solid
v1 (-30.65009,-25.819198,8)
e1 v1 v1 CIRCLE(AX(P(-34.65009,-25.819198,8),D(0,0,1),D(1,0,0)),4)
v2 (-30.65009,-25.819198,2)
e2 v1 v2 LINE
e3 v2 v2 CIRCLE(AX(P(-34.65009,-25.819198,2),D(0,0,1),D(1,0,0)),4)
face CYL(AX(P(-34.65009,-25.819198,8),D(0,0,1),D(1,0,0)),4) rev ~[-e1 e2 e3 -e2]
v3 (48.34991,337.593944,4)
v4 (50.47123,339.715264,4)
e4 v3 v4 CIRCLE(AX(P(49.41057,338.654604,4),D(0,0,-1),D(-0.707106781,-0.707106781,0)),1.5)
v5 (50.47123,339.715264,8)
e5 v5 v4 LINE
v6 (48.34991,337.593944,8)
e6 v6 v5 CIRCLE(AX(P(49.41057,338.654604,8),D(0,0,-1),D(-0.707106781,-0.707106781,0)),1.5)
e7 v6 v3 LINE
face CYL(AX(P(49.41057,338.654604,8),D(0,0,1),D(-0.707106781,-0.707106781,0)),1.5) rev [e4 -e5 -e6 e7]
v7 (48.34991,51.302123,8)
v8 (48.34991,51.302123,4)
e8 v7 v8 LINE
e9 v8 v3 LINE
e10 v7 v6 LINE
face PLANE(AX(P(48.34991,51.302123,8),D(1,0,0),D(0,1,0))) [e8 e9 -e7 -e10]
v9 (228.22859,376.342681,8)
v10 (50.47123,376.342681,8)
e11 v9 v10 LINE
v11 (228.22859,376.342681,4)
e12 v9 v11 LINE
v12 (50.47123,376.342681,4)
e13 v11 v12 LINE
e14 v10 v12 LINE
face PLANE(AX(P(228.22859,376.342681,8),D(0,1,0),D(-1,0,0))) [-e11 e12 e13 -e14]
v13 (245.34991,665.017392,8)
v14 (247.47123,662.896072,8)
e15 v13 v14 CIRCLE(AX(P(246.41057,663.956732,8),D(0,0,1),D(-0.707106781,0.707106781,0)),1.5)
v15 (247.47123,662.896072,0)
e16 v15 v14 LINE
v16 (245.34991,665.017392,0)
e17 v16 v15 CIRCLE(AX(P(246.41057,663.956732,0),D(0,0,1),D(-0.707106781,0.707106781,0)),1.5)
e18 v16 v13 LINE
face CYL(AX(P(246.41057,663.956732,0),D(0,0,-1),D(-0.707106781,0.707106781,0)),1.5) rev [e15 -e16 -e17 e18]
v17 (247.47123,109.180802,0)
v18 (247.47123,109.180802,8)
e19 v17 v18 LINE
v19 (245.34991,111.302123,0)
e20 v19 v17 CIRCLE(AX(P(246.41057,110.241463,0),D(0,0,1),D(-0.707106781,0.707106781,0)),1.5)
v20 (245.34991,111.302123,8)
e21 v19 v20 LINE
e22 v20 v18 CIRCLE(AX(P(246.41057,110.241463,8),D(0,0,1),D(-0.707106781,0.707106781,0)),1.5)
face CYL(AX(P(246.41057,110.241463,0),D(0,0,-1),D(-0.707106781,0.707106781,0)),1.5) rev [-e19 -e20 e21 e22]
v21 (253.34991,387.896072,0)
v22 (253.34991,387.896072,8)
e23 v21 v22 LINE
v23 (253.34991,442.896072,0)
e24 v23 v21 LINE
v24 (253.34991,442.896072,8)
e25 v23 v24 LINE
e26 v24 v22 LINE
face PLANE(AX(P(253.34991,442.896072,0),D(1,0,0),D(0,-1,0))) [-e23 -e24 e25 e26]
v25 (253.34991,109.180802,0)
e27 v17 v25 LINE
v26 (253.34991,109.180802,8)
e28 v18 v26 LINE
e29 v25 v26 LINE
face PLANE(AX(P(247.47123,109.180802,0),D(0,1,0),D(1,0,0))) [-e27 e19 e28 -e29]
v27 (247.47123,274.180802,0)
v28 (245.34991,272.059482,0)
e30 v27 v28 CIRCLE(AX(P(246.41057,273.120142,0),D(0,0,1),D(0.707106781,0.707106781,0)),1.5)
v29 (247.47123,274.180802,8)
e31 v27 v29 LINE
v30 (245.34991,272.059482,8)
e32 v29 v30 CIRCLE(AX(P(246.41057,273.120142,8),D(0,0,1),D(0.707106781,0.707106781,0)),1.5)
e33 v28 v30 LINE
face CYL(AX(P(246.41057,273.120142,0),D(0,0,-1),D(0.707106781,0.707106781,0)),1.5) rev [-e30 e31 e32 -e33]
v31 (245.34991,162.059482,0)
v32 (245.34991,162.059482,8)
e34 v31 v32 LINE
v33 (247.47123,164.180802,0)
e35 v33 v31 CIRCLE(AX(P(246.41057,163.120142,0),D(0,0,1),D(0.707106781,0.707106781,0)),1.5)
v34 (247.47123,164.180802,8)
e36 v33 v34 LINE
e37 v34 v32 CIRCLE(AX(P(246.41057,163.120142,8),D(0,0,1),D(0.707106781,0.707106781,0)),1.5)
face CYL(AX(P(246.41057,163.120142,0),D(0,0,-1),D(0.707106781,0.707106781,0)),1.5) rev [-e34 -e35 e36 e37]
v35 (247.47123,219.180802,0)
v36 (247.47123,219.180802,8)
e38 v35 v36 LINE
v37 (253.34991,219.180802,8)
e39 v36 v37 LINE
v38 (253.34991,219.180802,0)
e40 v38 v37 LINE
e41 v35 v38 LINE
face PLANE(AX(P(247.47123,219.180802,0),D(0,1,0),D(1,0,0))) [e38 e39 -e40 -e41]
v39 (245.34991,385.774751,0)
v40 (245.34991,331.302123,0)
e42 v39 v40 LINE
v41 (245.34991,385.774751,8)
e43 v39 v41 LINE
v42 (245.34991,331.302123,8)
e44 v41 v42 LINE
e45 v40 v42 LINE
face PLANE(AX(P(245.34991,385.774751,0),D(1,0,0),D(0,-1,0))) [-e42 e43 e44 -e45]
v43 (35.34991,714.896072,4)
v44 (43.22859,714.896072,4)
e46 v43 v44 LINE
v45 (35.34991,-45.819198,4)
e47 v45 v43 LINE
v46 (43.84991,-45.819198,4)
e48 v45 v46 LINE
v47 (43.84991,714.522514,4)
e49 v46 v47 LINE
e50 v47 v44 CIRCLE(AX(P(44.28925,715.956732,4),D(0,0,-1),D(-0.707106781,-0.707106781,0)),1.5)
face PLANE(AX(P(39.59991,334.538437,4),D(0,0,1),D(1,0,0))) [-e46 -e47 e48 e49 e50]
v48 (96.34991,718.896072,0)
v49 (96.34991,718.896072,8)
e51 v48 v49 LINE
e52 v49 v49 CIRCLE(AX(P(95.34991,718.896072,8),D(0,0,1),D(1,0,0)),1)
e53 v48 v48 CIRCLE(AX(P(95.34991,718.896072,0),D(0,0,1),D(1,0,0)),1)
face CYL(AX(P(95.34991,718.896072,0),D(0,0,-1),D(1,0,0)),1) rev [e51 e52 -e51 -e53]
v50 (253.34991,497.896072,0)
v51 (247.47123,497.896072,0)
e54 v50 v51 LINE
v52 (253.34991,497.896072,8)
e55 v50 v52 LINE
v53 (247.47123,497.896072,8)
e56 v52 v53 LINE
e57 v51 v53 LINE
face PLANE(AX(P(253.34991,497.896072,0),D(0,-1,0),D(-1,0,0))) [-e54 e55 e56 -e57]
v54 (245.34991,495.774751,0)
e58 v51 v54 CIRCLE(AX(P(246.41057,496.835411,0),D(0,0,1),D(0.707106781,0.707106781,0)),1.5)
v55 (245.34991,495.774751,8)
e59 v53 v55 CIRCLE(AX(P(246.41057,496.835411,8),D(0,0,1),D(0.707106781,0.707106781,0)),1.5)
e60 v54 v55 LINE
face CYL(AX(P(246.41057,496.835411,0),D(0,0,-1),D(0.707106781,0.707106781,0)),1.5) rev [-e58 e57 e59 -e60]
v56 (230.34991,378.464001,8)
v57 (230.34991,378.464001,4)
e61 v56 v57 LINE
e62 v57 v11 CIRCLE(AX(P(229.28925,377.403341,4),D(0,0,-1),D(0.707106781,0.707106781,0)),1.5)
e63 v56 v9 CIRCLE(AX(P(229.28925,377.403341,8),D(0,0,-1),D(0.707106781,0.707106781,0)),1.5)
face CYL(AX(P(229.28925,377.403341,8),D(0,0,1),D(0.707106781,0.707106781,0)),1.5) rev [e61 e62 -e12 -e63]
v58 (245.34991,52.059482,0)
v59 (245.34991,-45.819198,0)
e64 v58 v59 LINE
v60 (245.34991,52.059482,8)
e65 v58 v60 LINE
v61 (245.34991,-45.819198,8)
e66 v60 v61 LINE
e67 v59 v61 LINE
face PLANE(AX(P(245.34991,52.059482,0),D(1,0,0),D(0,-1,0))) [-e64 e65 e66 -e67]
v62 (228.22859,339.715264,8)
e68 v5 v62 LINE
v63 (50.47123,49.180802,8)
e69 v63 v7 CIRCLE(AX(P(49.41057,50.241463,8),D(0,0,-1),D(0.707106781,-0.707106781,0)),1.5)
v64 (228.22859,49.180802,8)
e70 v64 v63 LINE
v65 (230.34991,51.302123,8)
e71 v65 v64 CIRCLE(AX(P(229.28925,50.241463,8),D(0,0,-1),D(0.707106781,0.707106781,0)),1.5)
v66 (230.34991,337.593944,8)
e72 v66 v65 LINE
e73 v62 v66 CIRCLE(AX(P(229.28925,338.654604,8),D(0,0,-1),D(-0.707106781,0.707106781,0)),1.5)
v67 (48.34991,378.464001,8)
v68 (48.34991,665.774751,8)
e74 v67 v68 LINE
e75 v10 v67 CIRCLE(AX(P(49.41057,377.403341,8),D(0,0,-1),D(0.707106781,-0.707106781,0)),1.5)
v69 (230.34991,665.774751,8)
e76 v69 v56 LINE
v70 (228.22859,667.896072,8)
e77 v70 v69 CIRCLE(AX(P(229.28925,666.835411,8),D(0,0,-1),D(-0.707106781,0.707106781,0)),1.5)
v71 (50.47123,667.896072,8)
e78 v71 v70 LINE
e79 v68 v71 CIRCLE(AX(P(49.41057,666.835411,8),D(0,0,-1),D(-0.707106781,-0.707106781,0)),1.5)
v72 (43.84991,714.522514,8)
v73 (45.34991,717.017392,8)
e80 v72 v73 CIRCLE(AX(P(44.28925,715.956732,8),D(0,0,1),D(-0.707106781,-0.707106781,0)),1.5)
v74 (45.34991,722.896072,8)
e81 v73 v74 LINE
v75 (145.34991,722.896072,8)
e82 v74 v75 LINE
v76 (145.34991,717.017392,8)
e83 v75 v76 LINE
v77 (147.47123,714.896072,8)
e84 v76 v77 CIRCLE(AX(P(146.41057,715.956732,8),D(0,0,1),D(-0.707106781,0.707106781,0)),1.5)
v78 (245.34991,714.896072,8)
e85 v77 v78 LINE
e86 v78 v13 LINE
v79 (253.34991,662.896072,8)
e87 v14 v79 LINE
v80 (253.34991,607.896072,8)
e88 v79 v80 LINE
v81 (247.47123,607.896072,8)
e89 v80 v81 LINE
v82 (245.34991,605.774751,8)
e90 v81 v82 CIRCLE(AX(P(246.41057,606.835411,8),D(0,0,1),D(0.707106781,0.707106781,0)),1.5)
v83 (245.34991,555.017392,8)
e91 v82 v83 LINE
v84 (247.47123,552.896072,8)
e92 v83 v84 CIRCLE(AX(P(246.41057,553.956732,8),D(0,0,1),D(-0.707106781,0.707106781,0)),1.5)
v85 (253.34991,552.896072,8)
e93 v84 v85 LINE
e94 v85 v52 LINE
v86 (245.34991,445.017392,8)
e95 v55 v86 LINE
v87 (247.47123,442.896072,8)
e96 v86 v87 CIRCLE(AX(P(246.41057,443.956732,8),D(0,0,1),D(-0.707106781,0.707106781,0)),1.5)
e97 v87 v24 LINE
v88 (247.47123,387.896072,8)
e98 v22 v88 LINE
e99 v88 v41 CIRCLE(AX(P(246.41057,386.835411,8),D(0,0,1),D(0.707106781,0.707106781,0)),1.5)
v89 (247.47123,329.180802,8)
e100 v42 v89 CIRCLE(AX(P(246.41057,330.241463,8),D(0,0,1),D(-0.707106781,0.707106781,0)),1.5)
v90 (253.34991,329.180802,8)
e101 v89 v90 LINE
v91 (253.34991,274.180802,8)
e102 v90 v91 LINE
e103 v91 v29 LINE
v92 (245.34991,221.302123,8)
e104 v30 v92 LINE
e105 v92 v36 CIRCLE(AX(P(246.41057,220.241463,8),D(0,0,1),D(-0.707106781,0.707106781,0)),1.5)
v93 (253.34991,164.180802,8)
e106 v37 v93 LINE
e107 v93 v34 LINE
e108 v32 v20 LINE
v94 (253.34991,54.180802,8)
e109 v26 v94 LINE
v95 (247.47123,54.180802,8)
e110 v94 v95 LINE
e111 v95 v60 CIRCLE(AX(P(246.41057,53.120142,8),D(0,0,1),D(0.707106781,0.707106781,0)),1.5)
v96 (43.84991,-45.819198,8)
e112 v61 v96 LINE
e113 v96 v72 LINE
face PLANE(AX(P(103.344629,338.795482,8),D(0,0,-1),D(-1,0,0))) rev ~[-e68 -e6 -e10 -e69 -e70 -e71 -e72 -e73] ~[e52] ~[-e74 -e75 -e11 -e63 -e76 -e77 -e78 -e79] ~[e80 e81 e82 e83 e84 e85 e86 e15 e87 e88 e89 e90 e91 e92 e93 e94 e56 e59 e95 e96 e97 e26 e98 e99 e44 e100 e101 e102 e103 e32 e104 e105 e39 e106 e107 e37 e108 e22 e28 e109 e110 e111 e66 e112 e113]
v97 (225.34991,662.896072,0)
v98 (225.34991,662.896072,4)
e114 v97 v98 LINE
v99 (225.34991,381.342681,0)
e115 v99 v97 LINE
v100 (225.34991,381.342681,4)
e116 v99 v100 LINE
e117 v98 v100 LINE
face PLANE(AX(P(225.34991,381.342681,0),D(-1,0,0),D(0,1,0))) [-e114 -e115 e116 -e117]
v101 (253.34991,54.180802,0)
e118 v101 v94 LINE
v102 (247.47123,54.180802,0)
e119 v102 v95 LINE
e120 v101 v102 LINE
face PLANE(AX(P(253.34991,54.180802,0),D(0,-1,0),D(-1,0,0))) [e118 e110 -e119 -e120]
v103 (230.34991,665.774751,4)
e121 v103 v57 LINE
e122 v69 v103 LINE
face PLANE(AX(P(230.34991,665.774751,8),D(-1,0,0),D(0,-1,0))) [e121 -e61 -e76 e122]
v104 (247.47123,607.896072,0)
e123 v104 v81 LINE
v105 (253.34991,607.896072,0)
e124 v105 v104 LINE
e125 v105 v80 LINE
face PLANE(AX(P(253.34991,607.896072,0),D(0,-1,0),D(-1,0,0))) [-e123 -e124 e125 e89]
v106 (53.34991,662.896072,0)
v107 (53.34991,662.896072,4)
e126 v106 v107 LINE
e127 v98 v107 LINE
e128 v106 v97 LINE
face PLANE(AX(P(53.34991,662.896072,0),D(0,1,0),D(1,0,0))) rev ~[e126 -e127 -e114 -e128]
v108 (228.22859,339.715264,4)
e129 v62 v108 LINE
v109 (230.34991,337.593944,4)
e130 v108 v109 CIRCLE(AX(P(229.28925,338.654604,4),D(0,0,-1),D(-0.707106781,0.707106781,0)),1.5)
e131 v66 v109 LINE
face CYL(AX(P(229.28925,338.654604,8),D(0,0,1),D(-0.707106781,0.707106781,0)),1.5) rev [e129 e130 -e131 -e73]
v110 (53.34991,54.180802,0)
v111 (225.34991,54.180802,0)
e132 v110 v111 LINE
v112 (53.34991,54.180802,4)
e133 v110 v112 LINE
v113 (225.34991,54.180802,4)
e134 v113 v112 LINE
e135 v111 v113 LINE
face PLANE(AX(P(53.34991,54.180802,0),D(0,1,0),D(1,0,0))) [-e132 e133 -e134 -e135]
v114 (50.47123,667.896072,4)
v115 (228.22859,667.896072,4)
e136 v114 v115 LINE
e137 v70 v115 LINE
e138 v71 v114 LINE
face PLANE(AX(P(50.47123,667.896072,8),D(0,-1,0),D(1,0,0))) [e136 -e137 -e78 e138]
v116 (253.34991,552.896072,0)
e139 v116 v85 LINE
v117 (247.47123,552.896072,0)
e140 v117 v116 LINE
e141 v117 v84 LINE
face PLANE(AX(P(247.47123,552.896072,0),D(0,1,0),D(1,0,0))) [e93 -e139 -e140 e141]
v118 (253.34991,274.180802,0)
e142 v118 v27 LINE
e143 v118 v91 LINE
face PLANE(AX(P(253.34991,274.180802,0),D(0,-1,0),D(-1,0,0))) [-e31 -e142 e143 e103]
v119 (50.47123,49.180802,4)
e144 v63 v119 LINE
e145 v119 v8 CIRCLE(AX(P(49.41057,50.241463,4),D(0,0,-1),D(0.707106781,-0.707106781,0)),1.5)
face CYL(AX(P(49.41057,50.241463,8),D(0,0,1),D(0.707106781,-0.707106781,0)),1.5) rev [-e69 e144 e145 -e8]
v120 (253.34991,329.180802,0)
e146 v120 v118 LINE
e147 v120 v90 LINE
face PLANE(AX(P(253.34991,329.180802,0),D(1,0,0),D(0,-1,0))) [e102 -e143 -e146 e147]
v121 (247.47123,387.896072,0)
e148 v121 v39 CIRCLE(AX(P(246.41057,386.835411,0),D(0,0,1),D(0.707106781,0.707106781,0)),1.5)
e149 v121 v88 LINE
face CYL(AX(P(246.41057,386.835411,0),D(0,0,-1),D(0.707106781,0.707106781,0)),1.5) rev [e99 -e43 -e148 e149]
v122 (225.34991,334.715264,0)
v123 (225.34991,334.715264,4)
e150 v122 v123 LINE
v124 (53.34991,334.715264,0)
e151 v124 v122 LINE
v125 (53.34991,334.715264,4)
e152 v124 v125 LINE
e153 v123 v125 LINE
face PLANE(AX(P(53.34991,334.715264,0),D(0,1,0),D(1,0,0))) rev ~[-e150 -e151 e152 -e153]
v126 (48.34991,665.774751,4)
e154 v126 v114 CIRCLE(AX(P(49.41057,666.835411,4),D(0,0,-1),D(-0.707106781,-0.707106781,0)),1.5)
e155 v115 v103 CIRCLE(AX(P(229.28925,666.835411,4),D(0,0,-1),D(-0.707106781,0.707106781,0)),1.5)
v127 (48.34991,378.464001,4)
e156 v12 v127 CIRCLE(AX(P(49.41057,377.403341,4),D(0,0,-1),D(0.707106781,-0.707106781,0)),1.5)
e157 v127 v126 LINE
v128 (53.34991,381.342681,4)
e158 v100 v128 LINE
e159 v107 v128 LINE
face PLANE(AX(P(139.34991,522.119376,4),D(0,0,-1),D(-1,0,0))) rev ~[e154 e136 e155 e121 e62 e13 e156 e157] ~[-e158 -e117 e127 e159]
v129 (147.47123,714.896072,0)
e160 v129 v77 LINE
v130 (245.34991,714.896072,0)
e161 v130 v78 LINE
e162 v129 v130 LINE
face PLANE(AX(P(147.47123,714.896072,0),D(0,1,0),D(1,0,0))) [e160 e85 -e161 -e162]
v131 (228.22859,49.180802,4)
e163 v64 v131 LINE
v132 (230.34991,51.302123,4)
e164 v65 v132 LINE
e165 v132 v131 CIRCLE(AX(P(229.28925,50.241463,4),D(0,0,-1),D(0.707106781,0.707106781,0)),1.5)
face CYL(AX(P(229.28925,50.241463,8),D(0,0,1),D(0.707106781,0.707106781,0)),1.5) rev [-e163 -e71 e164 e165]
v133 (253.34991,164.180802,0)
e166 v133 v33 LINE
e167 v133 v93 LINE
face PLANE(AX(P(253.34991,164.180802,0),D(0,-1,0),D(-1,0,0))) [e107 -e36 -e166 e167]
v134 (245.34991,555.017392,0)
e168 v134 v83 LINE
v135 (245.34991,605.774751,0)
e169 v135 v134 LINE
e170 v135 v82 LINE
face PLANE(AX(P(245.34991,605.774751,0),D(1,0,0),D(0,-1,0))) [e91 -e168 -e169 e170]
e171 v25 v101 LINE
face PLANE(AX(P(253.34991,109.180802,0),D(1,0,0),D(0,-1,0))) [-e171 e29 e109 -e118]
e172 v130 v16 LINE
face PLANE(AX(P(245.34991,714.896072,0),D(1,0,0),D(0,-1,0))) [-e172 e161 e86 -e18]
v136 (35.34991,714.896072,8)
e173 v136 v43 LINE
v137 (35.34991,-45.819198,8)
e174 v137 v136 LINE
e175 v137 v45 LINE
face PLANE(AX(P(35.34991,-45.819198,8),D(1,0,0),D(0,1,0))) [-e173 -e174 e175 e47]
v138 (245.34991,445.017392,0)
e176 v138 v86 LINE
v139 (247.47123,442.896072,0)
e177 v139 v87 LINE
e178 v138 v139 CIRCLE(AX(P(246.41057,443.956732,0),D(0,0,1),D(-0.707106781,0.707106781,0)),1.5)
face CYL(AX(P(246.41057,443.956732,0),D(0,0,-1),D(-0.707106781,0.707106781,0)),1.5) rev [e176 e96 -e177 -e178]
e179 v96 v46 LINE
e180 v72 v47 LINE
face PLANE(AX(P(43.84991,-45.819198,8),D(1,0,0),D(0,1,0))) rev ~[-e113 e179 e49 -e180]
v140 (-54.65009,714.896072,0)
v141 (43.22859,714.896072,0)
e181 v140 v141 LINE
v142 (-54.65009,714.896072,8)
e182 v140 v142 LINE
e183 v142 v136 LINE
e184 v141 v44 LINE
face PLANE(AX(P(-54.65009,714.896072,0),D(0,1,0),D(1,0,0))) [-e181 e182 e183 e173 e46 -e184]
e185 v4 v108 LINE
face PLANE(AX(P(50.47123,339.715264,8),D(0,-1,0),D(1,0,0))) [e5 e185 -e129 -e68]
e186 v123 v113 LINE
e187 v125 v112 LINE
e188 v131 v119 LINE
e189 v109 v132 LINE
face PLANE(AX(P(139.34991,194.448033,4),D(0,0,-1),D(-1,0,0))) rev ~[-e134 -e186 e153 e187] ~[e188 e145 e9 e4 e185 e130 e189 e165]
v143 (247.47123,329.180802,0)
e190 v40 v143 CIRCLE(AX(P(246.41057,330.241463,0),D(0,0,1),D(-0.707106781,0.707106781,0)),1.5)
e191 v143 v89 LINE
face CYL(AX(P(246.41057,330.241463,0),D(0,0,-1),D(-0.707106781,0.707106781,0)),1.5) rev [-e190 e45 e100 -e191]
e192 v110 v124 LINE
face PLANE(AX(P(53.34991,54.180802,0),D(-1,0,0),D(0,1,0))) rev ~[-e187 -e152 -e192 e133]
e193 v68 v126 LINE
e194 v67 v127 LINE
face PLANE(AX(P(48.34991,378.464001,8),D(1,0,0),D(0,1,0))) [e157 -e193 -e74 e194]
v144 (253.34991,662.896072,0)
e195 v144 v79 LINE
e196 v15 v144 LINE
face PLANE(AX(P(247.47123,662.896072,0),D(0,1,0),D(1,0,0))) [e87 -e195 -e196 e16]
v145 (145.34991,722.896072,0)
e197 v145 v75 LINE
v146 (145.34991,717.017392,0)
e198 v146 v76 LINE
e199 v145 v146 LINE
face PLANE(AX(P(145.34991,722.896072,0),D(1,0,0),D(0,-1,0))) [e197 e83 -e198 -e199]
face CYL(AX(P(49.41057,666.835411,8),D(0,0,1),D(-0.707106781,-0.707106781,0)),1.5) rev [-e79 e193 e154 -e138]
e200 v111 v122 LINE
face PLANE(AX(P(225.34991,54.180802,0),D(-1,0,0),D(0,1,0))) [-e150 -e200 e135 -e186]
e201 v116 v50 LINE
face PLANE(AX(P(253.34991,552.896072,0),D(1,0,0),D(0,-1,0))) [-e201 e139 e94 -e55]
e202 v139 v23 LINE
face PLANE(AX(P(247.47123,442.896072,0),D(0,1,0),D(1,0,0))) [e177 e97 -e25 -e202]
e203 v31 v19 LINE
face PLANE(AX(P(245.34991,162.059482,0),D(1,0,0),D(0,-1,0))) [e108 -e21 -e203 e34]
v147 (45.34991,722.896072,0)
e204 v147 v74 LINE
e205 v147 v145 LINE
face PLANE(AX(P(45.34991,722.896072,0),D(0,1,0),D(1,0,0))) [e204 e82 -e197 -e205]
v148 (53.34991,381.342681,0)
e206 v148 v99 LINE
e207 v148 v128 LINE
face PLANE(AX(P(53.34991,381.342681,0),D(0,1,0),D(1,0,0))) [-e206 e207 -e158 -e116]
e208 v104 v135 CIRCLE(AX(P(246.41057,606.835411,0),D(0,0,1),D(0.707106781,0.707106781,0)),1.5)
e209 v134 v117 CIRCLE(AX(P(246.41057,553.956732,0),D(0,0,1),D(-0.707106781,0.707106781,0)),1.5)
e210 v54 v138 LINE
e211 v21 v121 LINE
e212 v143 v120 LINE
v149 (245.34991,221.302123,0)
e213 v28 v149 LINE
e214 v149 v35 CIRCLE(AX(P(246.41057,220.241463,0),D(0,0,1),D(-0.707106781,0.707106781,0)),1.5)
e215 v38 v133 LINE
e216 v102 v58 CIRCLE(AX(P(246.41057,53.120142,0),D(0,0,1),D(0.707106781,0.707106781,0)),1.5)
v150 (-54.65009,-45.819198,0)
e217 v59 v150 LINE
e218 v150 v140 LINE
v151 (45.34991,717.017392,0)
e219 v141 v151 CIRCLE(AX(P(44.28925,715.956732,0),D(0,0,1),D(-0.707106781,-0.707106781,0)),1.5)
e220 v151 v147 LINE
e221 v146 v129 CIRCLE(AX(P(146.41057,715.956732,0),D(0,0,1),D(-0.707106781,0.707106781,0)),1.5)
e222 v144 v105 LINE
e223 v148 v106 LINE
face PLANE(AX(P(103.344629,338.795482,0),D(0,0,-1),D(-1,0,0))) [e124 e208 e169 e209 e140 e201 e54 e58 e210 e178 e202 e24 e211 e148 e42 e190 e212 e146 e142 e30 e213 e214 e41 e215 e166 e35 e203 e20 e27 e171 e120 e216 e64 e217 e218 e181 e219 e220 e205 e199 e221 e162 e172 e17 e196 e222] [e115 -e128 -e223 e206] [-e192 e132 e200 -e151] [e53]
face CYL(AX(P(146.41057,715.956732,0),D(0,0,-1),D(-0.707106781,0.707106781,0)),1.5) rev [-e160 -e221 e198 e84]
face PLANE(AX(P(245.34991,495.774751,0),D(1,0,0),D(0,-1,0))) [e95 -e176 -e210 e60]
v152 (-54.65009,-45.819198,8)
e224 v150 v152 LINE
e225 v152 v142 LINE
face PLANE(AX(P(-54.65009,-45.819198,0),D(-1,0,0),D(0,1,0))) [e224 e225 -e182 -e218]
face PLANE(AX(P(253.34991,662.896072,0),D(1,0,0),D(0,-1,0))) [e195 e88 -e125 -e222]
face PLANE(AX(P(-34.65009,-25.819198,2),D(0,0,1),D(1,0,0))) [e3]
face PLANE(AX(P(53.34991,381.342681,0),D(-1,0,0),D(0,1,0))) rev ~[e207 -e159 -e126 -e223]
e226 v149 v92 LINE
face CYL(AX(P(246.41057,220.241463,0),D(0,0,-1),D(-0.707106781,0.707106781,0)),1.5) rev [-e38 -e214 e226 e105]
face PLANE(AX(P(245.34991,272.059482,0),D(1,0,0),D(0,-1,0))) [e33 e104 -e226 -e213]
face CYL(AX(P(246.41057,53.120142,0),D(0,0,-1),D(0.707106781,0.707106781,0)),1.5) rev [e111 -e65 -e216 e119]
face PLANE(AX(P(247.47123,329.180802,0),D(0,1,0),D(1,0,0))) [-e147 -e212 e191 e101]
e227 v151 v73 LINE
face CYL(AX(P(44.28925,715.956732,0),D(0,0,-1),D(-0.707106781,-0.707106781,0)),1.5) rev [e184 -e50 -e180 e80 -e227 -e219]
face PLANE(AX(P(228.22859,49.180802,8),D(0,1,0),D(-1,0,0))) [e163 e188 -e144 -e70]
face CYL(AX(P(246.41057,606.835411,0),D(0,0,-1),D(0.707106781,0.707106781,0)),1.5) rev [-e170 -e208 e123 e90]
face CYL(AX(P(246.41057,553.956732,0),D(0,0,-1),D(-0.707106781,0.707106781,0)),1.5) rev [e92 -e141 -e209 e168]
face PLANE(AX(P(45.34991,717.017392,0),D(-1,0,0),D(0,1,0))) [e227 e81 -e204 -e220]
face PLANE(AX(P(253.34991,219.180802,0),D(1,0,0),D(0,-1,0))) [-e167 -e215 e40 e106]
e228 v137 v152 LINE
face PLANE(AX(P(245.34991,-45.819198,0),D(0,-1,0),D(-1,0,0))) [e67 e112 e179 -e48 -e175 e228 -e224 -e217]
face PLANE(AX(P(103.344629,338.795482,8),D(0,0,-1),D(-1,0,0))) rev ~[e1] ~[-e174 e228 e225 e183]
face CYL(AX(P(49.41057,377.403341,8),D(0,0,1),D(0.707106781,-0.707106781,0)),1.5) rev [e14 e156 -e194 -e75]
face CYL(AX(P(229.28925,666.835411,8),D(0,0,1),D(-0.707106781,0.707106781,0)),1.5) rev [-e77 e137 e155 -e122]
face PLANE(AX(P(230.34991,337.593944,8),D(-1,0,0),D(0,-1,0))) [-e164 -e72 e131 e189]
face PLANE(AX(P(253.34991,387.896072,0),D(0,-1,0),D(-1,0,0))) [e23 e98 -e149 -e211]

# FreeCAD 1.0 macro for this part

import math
import FreeCAD as App
import Part
import Sketcher


def add_polygon(sketch, points):
    """Adds a closed chain of lines whose ends are joined by coincident constraints."""
    first, n = sketch.GeometryCount, len(points)
    for a, b in zip(points, points[1:] + points[:1]):
        sketch.addGeometry(Part.LineSegment(App.Vector(*a, 0), App.Vector(*b, 0)), False)
    for i in range(n):
        sketch.addConstraint(Sketcher.Constraint("Coincident", first + i, 2, first + (i + 1) % n, 1))

doc = App.newDocument("Part")
body = doc.addObject("PartDesign::Body", "Body")

# Sketch on XY plane
sketch1 = doc.addObject("Sketcher::SketchObject", "Sketch")
body.addObject(sketch1)
sketch1.AttachmentSupport = (doc.XY_Plane, [""])
sketch1.MapMode = "FlatFace"
sketch1.addGeometry(Part.LineSegment(App.Vector(-54.65009, 714.896072, 0), App.Vector(-54.65009, -45.819198, 0)), False)  # 0
sketch1.addGeometry(Part.LineSegment(App.Vector(-54.65009, -45.819198, 0), App.Vector(245.34991, -45.819198, 0)), False)  # 1
sketch1.addGeometry(Part.LineSegment(App.Vector(245.34991, -45.819198, 0), App.Vector(245.34991, 52.059482, 0)), False)  # 2
sketch1.addGeometry(Part.ArcOfCircle(Part.Circle(App.Vector(246.41057, 53.120142, 0), App.Vector(0, 0, 1), 1.5), math.radians(45), math.radians(225)), False)  # 3
sketch1.addGeometry(Part.LineSegment(App.Vector(247.47123, 54.180802, 0), App.Vector(253.34991, 54.180802, 0)), False)  # 4
sketch1.addGeometry(Part.LineSegment(App.Vector(253.34991, 54.180802, 0), App.Vector(253.34991, 109.180802, 0)), False)  # 5
sketch1.addGeometry(Part.LineSegment(App.Vector(253.34991, 109.180802, 0), App.Vector(247.47123, 109.180802, 0)), False)  # 6
sketch1.addGeometry(Part.ArcOfCircle(Part.Circle(App.Vector(246.41057, 110.241463, 0), App.Vector(0, 0, 1), 1.5), math.radians(135), math.radians(315)), False)  # 7
sketch1.addGeometry(Part.LineSegment(App.Vector(245.34991, 111.302123, 0), App.Vector(245.34991, 162.059482, 0)), False)  # 8
sketch1.addGeometry(Part.ArcOfCircle(Part.Circle(App.Vector(246.41057, 163.120142, 0), App.Vector(0, 0, 1), 1.5), math.radians(45), math.radians(225)), False)  # 9
sketch1.addGeometry(Part.LineSegment(App.Vector(247.47123, 164.180802, 0), App.Vector(253.34991, 164.180802, 0)), False)  # 10
sketch1.addGeometry(Part.LineSegment(App.Vector(253.34991, 164.180802, 0), App.Vector(253.34991, 219.180802, 0)), False)  # 11
sketch1.addGeometry(Part.LineSegment(App.Vector(253.34991, 219.180802, 0), App.Vector(247.47123, 219.180802, 0)), False)  # 12
sketch1.addGeometry(Part.ArcOfCircle(Part.Circle(App.Vector(246.41057, 220.241463, 0), App.Vector(0, 0, 1), 1.5), math.radians(135), math.radians(315)), False)  # 13
sketch1.addGeometry(Part.LineSegment(App.Vector(245.34991, 221.302123, 0), App.Vector(245.34991, 272.059482, 0)), False)  # 14
sketch1.addGeometry(Part.ArcOfCircle(Part.Circle(App.Vector(246.41057, 273.120142, 0), App.Vector(0, 0, 1), 1.5), math.radians(45), math.radians(225)), False)  # 15
sketch1.addGeometry(Part.LineSegment(App.Vector(247.47123, 274.180802, 0), App.Vector(253.34991, 274.180802, 0)), False)  # 16
sketch1.addGeometry(Part.LineSegment(App.Vector(253.34991, 274.180802, 0), App.Vector(253.34991, 329.180802, 0)), False)  # 17
sketch1.addGeometry(Part.LineSegment(App.Vector(253.34991, 329.180802, 0), App.Vector(247.47123, 329.180802, 0)), False)  # 18
sketch1.addGeometry(Part.ArcOfCircle(Part.Circle(App.Vector(246.41057, 330.241463, 0), App.Vector(0, 0, 1), 1.5), math.radians(135), math.radians(315)), False)  # 19
sketch1.addGeometry(Part.LineSegment(App.Vector(245.34991, 331.302123, 0), App.Vector(245.34991, 385.774751, 0)), False)  # 20
sketch1.addGeometry(Part.ArcOfCircle(Part.Circle(App.Vector(246.41057, 386.835411, 0), App.Vector(0, 0, 1), 1.5), math.radians(45), math.radians(225)), False)  # 21
sketch1.addGeometry(Part.LineSegment(App.Vector(247.47123, 387.896072, 0), App.Vector(253.34991, 387.896072, 0)), False)  # 22
sketch1.addGeometry(Part.LineSegment(App.Vector(253.34991, 387.896072, 0), App.Vector(253.34991, 442.896072, 0)), False)  # 23
sketch1.addGeometry(Part.LineSegment(App.Vector(253.34991, 442.896072, 0), App.Vector(247.47123, 442.896072, 0)), False)  # 24
sketch1.addGeometry(Part.ArcOfCircle(Part.Circle(App.Vector(246.41057, 443.956732, 0), App.Vector(0, 0, 1), 1.5), math.radians(135), math.radians(315)), False)  # 25
sketch1.addGeometry(Part.LineSegment(App.Vector(245.34991, 445.017392, 0), App.Vector(245.34991, 495.774751, 0)), False)  # 26
sketch1.addGeometry(Part.ArcOfCircle(Part.Circle(App.Vector(246.41057, 496.835411, 0), App.Vector(0, 0, 1), 1.5), math.radians(45), math.radians(225)), False)  # 27
sketch1.addGeometry(Part.LineSegment(App.Vector(247.47123, 497.896072, 0), App.Vector(253.34991, 497.896072, 0)), False)  # 28
sketch1.addGeometry(Part.LineSegment(App.Vector(253.34991, 497.896072, 0), App.Vector(253.34991, 552.896072, 0)), False)  # 29
sketch1.addGeometry(Part.LineSegment(App.Vector(253.34991, 552.896072, 0), App.Vector(247.47123, 552.896072, 0)), False)  # 30
sketch1.addGeometry(Part.ArcOfCircle(Part.Circle(App.Vector(246.41057, 553.956732, 0), App.Vector(0, 0, 1), 1.5), math.radians(135), math.radians(315)), False)  # 31
sketch1.addGeometry(Part.LineSegment(App.Vector(245.34991, 555.017392, 0), App.Vector(245.34991, 605.774751, 0)), False)  # 32
sketch1.addGeometry(Part.ArcOfCircle(Part.Circle(App.Vector(246.41057, 606.835411, 0), App.Vector(0, 0, 1), 1.5), math.radians(45), math.radians(225)), False)  # 33
sketch1.addGeometry(Part.LineSegment(App.Vector(247.47123, 607.896072, 0), App.Vector(253.34991, 607.896072, 0)), False)  # 34
sketch1.addGeometry(Part.LineSegment(App.Vector(253.34991, 607.896072, 0), App.Vector(253.34991, 662.896072, 0)), False)  # 35
sketch1.addGeometry(Part.LineSegment(App.Vector(253.34991, 662.896072, 0), App.Vector(247.47123, 662.896072, 0)), False)  # 36
sketch1.addGeometry(Part.ArcOfCircle(Part.Circle(App.Vector(246.41057, 663.956732, 0), App.Vector(0, 0, 1), 1.5), math.radians(135), math.radians(315)), False)  # 37
sketch1.addGeometry(Part.LineSegment(App.Vector(245.34991, 665.017392, 0), App.Vector(245.34991, 714.896072, 0)), False)  # 38
sketch1.addGeometry(Part.LineSegment(App.Vector(245.34991, 714.896072, 0), App.Vector(147.47123, 714.896072, 0)), False)  # 39
sketch1.addGeometry(Part.ArcOfCircle(Part.Circle(App.Vector(146.41057, 715.956732, 0), App.Vector(0, 0, 1), 1.5), math.radians(135), math.radians(315)), False)  # 40
sketch1.addGeometry(Part.LineSegment(App.Vector(145.34991, 717.017392, 0), App.Vector(145.34991, 722.896072, 0)), False)  # 41
sketch1.addGeometry(Part.LineSegment(App.Vector(145.34991, 722.896072, 0), App.Vector(45.34991, 722.896072, 0)), False)  # 42
sketch1.addGeometry(Part.LineSegment(App.Vector(45.34991, 722.896072, 0), App.Vector(45.34991, 717.017392, 0)), False)  # 43
sketch1.addGeometry(Part.ArcOfCircle(Part.Circle(App.Vector(44.28925, 715.956732, 0), App.Vector(0, 0, 1), 1.5), math.radians(-135), math.radians(45)), False)  # 44
sketch1.addGeometry(Part.LineSegment(App.Vector(43.22859, 714.896072, 0), App.Vector(-54.65009, 714.896072, 0)), False)  # 45
add_polygon(sketch1, [(53.34991, 54.180802), (53.34991, 334.715264), (225.34991, 334.715264), (225.34991, 54.180802)])  # lines 46-49
add_polygon(sketch1, [(53.34991, 381.342681), (53.34991, 662.896072), (225.34991, 662.896072), (225.34991, 381.342681)])  # lines 50-53
sketch1.addGeometry(Part.Circle(App.Vector(95.34991, 718.896072, 0), App.Vector(0, 0, 1), 1), False)  # 54
sketch1.addConstraint([
    Sketcher.Constraint("Coincident", 0, 2, 1, 1),
    Sketcher.Constraint("Coincident", 1, 2, 2, 1),
    Sketcher.Constraint("Coincident", 2, 2, 3, 2),
    Sketcher.Constraint("Coincident", 3, 1, 4, 1),
    Sketcher.Constraint("Coincident", 4, 2, 5, 1),
    Sketcher.Constraint("Coincident", 5, 2, 6, 1),
    Sketcher.Constraint("Coincident", 6, 2, 7, 2),
    Sketcher.Constraint("Coincident", 7, 1, 8, 1),
    Sketcher.Constraint("Coincident", 8, 2, 9, 2),
    Sketcher.Constraint("Coincident", 9, 1, 10, 1),
    Sketcher.Constraint("Coincident", 10, 2, 11, 1),
    Sketcher.Constraint("Coincident", 11, 2, 12, 1),
    Sketcher.Constraint("Coincident", 12, 2, 13, 2),
    Sketcher.Constraint("Coincident", 13, 1, 14, 1),
    Sketcher.Constraint("Coincident", 14, 2, 15, 2),
    Sketcher.Constraint("Coincident", 15, 1, 16, 1),
    Sketcher.Constraint("Coincident", 16, 2, 17, 1),
    Sketcher.Constraint("Coincident", 17, 2, 18, 1),
    Sketcher.Constraint("Coincident", 18, 2, 19, 2),
    Sketcher.Constraint("Coincident", 19, 1, 20, 1),
    Sketcher.Constraint("Coincident", 20, 2, 21, 2),
    Sketcher.Constraint("Coincident", 21, 1, 22, 1),
    Sketcher.Constraint("Coincident", 22, 2, 23, 1),
    Sketcher.Constraint("Coincident", 23, 2, 24, 1),
    Sketcher.Constraint("Coincident", 24, 2, 25, 2),
    Sketcher.Constraint("Coincident", 25, 1, 26, 1),
    Sketcher.Constraint("Coincident", 26, 2, 27, 2),
    Sketcher.Constraint("Coincident", 27, 1, 28, 1),
    Sketcher.Constraint("Coincident", 28, 2, 29, 1),
    Sketcher.Constraint("Coincident", 29, 2, 30, 1),
    Sketcher.Constraint("Coincident", 30, 2, 31, 2),
    Sketcher.Constraint("Coincident", 31, 1, 32, 1),
    Sketcher.Constraint("Coincident", 32, 2, 33, 2),
    Sketcher.Constraint("Coincident", 33, 1, 34, 1),
    Sketcher.Constraint("Coincident", 34, 2, 35, 1),
    Sketcher.Constraint("Coincident", 35, 2, 36, 1),
    Sketcher.Constraint("Coincident", 36, 2, 37, 2),
    Sketcher.Constraint("Coincident", 37, 1, 38, 1),
    Sketcher.Constraint("Coincident", 38, 2, 39, 1),
    Sketcher.Constraint("Coincident", 39, 2, 40, 2),
    Sketcher.Constraint("Coincident", 40, 1, 41, 1),
    Sketcher.Constraint("Coincident", 41, 2, 42, 1),
    Sketcher.Constraint("Coincident", 42, 2, 43, 1),
    Sketcher.Constraint("Coincident", 43, 2, 44, 2),
    Sketcher.Constraint("Coincident", 44, 1, 45, 1),
    Sketcher.Constraint("Coincident", 45, 2, 0, 1),
    Sketcher.Constraint("Vertical", 0),
    Sketcher.Constraint("Horizontal", 1),
    Sketcher.Constraint("Vertical", 2),
    Sketcher.Constraint("Horizontal", 4),
    Sketcher.Constraint("Vertical", 5),
    Sketcher.Constraint("Horizontal", 6),
    Sketcher.Constraint("Vertical", 8),
    Sketcher.Constraint("Horizontal", 10),
    Sketcher.Constraint("Vertical", 11),
    Sketcher.Constraint("Horizontal", 12),
    Sketcher.Constraint("Vertical", 14),
    Sketcher.Constraint("Horizontal", 16),
    Sketcher.Constraint("Vertical", 17),
    Sketcher.Constraint("Horizontal", 18),
    Sketcher.Constraint("Vertical", 20),
    Sketcher.Constraint("Horizontal", 22),
    Sketcher.Constraint("Vertical", 23),
    Sketcher.Constraint("Horizontal", 24),
    Sketcher.Constraint("Vertical", 26),
    Sketcher.Constraint("Horizontal", 28),
    Sketcher.Constraint("Vertical", 29),
    Sketcher.Constraint("Horizontal", 30),
    Sketcher.Constraint("Vertical", 32),
    Sketcher.Constraint("Horizontal", 34),
    Sketcher.Constraint("Vertical", 35),
    Sketcher.Constraint("Horizontal", 36),
    Sketcher.Constraint("Vertical", 38),
    Sketcher.Constraint("Horizontal", 39),
    Sketcher.Constraint("Vertical", 41),
    Sketcher.Constraint("Horizontal", 42),
    Sketcher.Constraint("Vertical", 43),
    Sketcher.Constraint("Horizontal", 45),
    Sketcher.Constraint("Vertical", 46),
    Sketcher.Constraint("Horizontal", 47),
    Sketcher.Constraint("Vertical", 48),
    Sketcher.Constraint("Horizontal", 49),
    Sketcher.Constraint("Vertical", 50),
    Sketcher.Constraint("Horizontal", 51),
    Sketcher.Constraint("Vertical", 52),
    Sketcher.Constraint("Horizontal", 53),
    Sketcher.Constraint("Equal", 3, 7),
    Sketcher.Constraint("Equal", 7, 9),
    Sketcher.Constraint("Equal", 9, 13),
    Sketcher.Constraint("Equal", 13, 15),
    Sketcher.Constraint("Equal", 15, 19),
    Sketcher.Constraint("Equal", 19, 21),
    Sketcher.Constraint("Equal", 21, 25),
    Sketcher.Constraint("Equal", 25, 27),
    Sketcher.Constraint("Equal", 27, 31),
    Sketcher.Constraint("Equal", 31, 33),
    Sketcher.Constraint("Equal", 33, 37),
    Sketcher.Constraint("Equal", 37, 40),
    Sketcher.Constraint("Equal", 40, 44),
    Sketcher.Constraint("Horizontal", 40, 3, 44, 3),
    Sketcher.Constraint("Horizontal", 40, 1, 43, 2),
    Sketcher.Constraint("Horizontal", 39, 2, 44, 1),
    Sketcher.Constraint("Horizontal", 4, 2, 48, 2),
    Sketcher.Constraint("Horizontal", 36, 2, 50, 2),
    Sketcher.Constraint("Vertical", 3, 3, 7, 3),
    Sketcher.Constraint("Vertical", 7, 3, 9, 3),
    Sketcher.Constraint("Vertical", 9, 3, 13, 3),
    Sketcher.Constraint("Vertical", 13, 3, 15, 3),
    Sketcher.Constraint("Vertical", 15, 3, 19, 3),
    Sketcher.Constraint("Vertical", 19, 3, 21, 3),
    Sketcher.Constraint("Vertical", 21, 3, 25, 3),
    Sketcher.Constraint("Vertical", 25, 3, 27, 3),
    Sketcher.Constraint("Vertical", 27, 3, 31, 3),
    Sketcher.Constraint("Vertical", 31, 3, 33, 3),
    Sketcher.Constraint("Vertical", 33, 3, 37, 3),
    Sketcher.Constraint("Vertical", 3, 1, 6, 2),
    Sketcher.Constraint("Vertical", 2, 2, 7, 1),
    Sketcher.Constraint("Vertical", 6, 2, 9, 1),
    Sketcher.Constraint("Vertical", 5, 2, 10, 2),
    Sketcher.Constraint("Vertical", 9, 1, 12, 2),
    Sketcher.Constraint("Vertical", 8, 2, 13, 1),
    Sketcher.Constraint("Vertical", 12, 2, 15, 1),
    Sketcher.Constraint("Vertical", 11, 2, 16, 2),
    Sketcher.Constraint("Vertical", 15, 1, 18, 2),
    Sketcher.Constraint("Vertical", 14, 2, 19, 1),
    Sketcher.Constraint("Vertical", 18, 2, 21, 1),
    Sketcher.Constraint("Vertical", 17, 2, 22, 2),
    Sketcher.Constraint("Vertical", 21, 1, 24, 2),
    Sketcher.Constraint("Vertical", 20, 2, 25, 1),
    Sketcher.Constraint("Vertical", 24, 2, 27, 1),
    Sketcher.Constraint("Vertical", 23, 2, 28, 2),
    Sketcher.Constraint("Vertical", 27, 1, 30, 2),
    Sketcher.Constraint("Vertical", 26, 2, 31, 1),
    Sketcher.Constraint("Vertical", 30, 2, 33, 1),
    Sketcher.Constraint("Vertical", 29, 2, 34, 2),
    Sketcher.Constraint("Vertical", 33, 1, 36, 2),
    Sketcher.Constraint("Vertical", 32, 2, 37, 1),
    Sketcher.Constraint("Vertical", 49, 2, 50, 2),
    Sketcher.Constraint("Vertical", 48, 2, 51, 2),
    Sketcher.Constraint("Equal", 39, 45),
    Sketcher.Constraint("Equal", 45, 2),
    Sketcher.Constraint("Equal", 5, 11),
    Sketcher.Constraint("Equal", 8, 14),
    Sketcher.Constraint("Equal", 11, 17),
    Sketcher.Constraint("Equal", 17, 23),
    Sketcher.Constraint("Equal", 14, 26),
    Sketcher.Constraint("Equal", 23, 29),
    Sketcher.Constraint("Equal", 26, 32),
    Sketcher.Constraint("Equal", 29, 35),
    Sketcher.Constraint("Equal", 36, 41),
    Sketcher.Constraint("Diameter", 54, 2.0),
    Sketcher.Constraint("Radius", 3, 1.5),
    Sketcher.Constraint("DistanceX", 1, 1, 1, 2, 300.0),
    Sketcher.Constraint("DistanceX", 42, 2, 42, 1, 100.0),
    Sketcher.Constraint("DistanceX", 47, 1, 47, 2, 172.0),
    Sketcher.Constraint("DistanceY", 5, 1, 5, 2, 55.0),
    Sketcher.Constraint("DistanceX", 4, 1, 4, 2, 5.87868),
    Sketcher.Constraint("DistanceX", 39, 2, 39, 1, 97.87868),
    Sketcher.Constraint("DistanceY", 0, 2, 0, 1, 760.715269),
    Sketcher.Constraint("DistanceY", 8, 1, 8, 2, 50.757359),
    Sketcher.Constraint("DistanceY", 20, 1, 20, 2, 54.472629),
    Sketcher.Constraint("DistanceY", 38, 1, 38, 2, 49.87868),
    Sketcher.Constraint("DistanceY", 46, 1, 46, 2, 280.534462),
    Sketcher.Constraint("DistanceY", 50, 1, 50, 2, 281.553391),
    Sketcher.Constraint("DistanceX", -1, 1, 3, 3, 246.41057),
    Sketcher.Constraint("DistanceY", -1, 1, 21, 3, 386.835411),
    Sketcher.Constraint("DistanceY", -1, 1, 25, 3, 443.956732),
    Sketcher.Constraint("DistanceX", -1, 1, 40, 3, 146.41057),
    Sketcher.Constraint("DistanceX", -1, 1, 54, 3, 95.34991),
    Sketcher.Constraint("DistanceY", -1, 1, 54, 3, 718.896072),
    Sketcher.Constraint("DistanceX", -1, 1, 46, 2, 53.34991),
])
pad1 = doc.addObject("PartDesign::Pad", "Pad")
body.addObject(pad1)
pad1.Profile = sketch1
pad1.Length = 8

# Sketch on XY plane
sketch2 = doc.addObject("Sketcher::SketchObject", "Sketch001")
body.addObject(sketch2)
sketch2.AttachmentSupport = (doc.XY_Plane, [""])
sketch2.MapMode = "FlatFace"
sketch2.AttachmentOffset = App.Placement(App.Vector(0, 0, 8), App.Rotation())
sketch2.addGeometry([
    Part.LineSegment(App.Vector(228.22859, 339.715264, 0), App.Vector(50.47123, 339.715264, 0)),  # 0
    Part.ArcOfCircle(Part.Circle(App.Vector(49.41057, 338.654604, 0), App.Vector(0, 0, 1), 1.5), math.radians(45), math.radians(225)),  # 1
    Part.LineSegment(App.Vector(48.34991, 337.593944, 0), App.Vector(48.34991, 51.302123, 0)),  # 2
    Part.ArcOfCircle(Part.Circle(App.Vector(49.41057, 50.241463, 0), App.Vector(0, 0, 1), 1.5), math.radians(135), math.radians(315)),  # 3
    Part.LineSegment(App.Vector(50.47123, 49.180802, 0), App.Vector(228.22859, 49.180802, 0)),  # 4
    Part.ArcOfCircle(Part.Circle(App.Vector(229.28925, 50.241463, 0), App.Vector(0, 0, 1), 1.5), math.radians(-135), math.radians(45)),  # 5
    Part.LineSegment(App.Vector(230.34991, 51.302123, 0), App.Vector(230.34991, 337.593944, 0)),  # 6
    Part.ArcOfCircle(Part.Circle(App.Vector(229.28925, 338.654604, 0), App.Vector(0, 0, 1), 1.5), math.radians(-45), math.radians(135)),  # 7
    Part.LineSegment(App.Vector(228.22859, 667.896072, 0), App.Vector(50.47123, 667.896072, 0)),  # 8
    Part.ArcOfCircle(Part.Circle(App.Vector(49.41057, 666.835411, 0), App.Vector(0, 0, 1), 1.5), math.radians(45), math.radians(225)),  # 9
    Part.LineSegment(App.Vector(48.34991, 665.774751, 0), App.Vector(48.34991, 378.464001, 0)),  # 10
    Part.ArcOfCircle(Part.Circle(App.Vector(49.41057, 377.403341, 0), App.Vector(0, 0, 1), 1.5), math.radians(135), math.radians(315)),  # 11
    Part.LineSegment(App.Vector(50.47123, 376.342681, 0), App.Vector(228.22859, 376.342681, 0)),  # 12
    Part.ArcOfCircle(Part.Circle(App.Vector(229.28925, 377.403341, 0), App.Vector(0, 0, 1), 1.5), math.radians(-135), math.radians(45)),  # 13
    Part.LineSegment(App.Vector(230.34991, 378.464001, 0), App.Vector(230.34991, 665.774751, 0)),  # 14
    Part.ArcOfCircle(Part.Circle(App.Vector(229.28925, 666.835411, 0), App.Vector(0, 0, 1), 1.5), math.radians(-45), math.radians(135)),  # 15
], False)
sketch2.addConstraint([
    Sketcher.Constraint("Coincident", 0, 2, 1, 1),
    Sketcher.Constraint("Coincident", 1, 2, 2, 1),
    Sketcher.Constraint("Coincident", 2, 2, 3, 1),
    Sketcher.Constraint("Coincident", 3, 2, 4, 1),
    Sketcher.Constraint("Coincident", 4, 2, 5, 1),
    Sketcher.Constraint("Coincident", 5, 2, 6, 1),
    Sketcher.Constraint("Coincident", 6, 2, 7, 1),
    Sketcher.Constraint("Coincident", 7, 2, 0, 1),
    Sketcher.Constraint("Coincident", 8, 2, 9, 1),
    Sketcher.Constraint("Coincident", 9, 2, 10, 1),
    Sketcher.Constraint("Coincident", 10, 2, 11, 1),
    Sketcher.Constraint("Coincident", 11, 2, 12, 1),
    Sketcher.Constraint("Coincident", 12, 2, 13, 1),
    Sketcher.Constraint("Coincident", 13, 2, 14, 1),
    Sketcher.Constraint("Coincident", 14, 2, 15, 1),
    Sketcher.Constraint("Coincident", 15, 2, 8, 1),
    Sketcher.Constraint("Horizontal", 0),
    Sketcher.Constraint("Vertical", 2),
    Sketcher.Constraint("Horizontal", 4),
    Sketcher.Constraint("Vertical", 6),
    Sketcher.Constraint("Horizontal", 8),
    Sketcher.Constraint("Vertical", 10),
    Sketcher.Constraint("Horizontal", 12),
    Sketcher.Constraint("Vertical", 14),
    Sketcher.Constraint("Equal", 1, 3),
    Sketcher.Constraint("Equal", 3, 5),
    Sketcher.Constraint("Equal", 5, 7),
    Sketcher.Constraint("Equal", 7, 9),
    Sketcher.Constraint("Equal", 9, 11),
    Sketcher.Constraint("Equal", 11, 13),
    Sketcher.Constraint("Equal", 13, 15),
    Sketcher.Constraint("Horizontal", 3, 3, 5, 3),
    Sketcher.Constraint("Horizontal", 1, 3, 7, 3),
    Sketcher.Constraint("Horizontal", 11, 3, 13, 3),
    Sketcher.Constraint("Horizontal", 9, 3, 15, 3),
    Sketcher.Constraint("Horizontal", 2, 2, 5, 2),
    Sketcher.Constraint("Horizontal", 1, 2, 6, 2),
    Sketcher.Constraint("Horizontal", 10, 2, 13, 2),
    Sketcher.Constraint("Horizontal", 9, 2, 14, 2),
    Sketcher.Constraint("Vertical", 1, 3, 3, 3),
    Sketcher.Constraint("Vertical", 3, 3, 9, 3),
    Sketcher.Constraint("Vertical", 9, 3, 11, 3),
    Sketcher.Constraint("Vertical", 7, 3, 13, 3),
    Sketcher.Constraint("Vertical", 0, 2, 3, 2),
    Sketcher.Constraint("Vertical", 3, 2, 8, 2),
    Sketcher.Constraint("Vertical", 2, 2, 9, 2),
    Sketcher.Constraint("Vertical", 8, 2, 11, 2),
    Sketcher.Constraint("Radius", 1, 1.5),
    Sketcher.Constraint("DistanceX", 2, 2, 5, 2, 182.0),
    Sketcher.Constraint("DistanceY", -1, 1, 10, 2, 378.464001),
    Sketcher.Constraint("DistanceX", 0, 2, 0, 1, 177.757359),
    Sketcher.Constraint("DistanceY", 2, 2, 2, 1, 286.291821),
    Sketcher.Constraint("DistanceY", 10, 2, 10, 1, 287.31075),
    Sketcher.Constraint("DistanceY", 3, 3, 0, 2, 289.473801),
    Sketcher.Constraint("DistanceX", -1, 1, 1, 3, 49.41057),
    Sketcher.Constraint("DistanceY", 3, 3, 9, 3, 616.593949),
])
pocket1 = doc.addObject("PartDesign::Pocket", "Pocket")
body.addObject(pocket1)
pocket1.Profile = sketch2
pocket1.Length = 4

# Sketch on XY plane
sketch3 = doc.addObject("Sketcher::SketchObject", "Sketch002")
body.addObject(sketch3)
sketch3.AttachmentSupport = (doc.XY_Plane, [""])
sketch3.MapMode = "FlatFace"
sketch3.AttachmentOffset = App.Placement(App.Vector(0, 0, 8), App.Rotation())
add_polygon(sketch3, [(35.34991, 714.896072), (35.34991, -45.819198), (43.84991, -45.819198), (43.84991, 714.896072)])  # lines 0-3
sketch3.addConstraint([
    Sketcher.Constraint("Vertical", 0),
    Sketcher.Constraint("Horizontal", 1),
    Sketcher.Constraint("Vertical", 2),
    Sketcher.Constraint("Horizontal", 3),
    Sketcher.Constraint("DistanceX", 1, 1, 1, 2, 8.5),
    Sketcher.Constraint("DistanceY", 0, 2, 0, 1, 760.715269),
    Sketcher.Constraint("DistanceX", -1, 1, 0, 2, 35.34991),
    Sketcher.Constraint("DistanceY", -1, 1, 2, 2, 714.896072),
])
pocket2 = doc.addObject("PartDesign::Pocket", "Pocket001")
body.addObject(pocket2)
pocket2.Profile = sketch3
pocket2.Length = 4

# Sketch on XY plane
sketch4 = doc.addObject("Sketcher::SketchObject", "Sketch003")
body.addObject(sketch4)
sketch4.AttachmentSupport = (doc.XY_Plane, [""])
sketch4.MapMode = "FlatFace"
sketch4.AttachmentOffset = App.Placement(App.Vector(0, 0, 8), App.Rotation())
sketch4.addGeometry(Part.Circle(App.Vector(-34.65009, -25.819198, 0), App.Vector(0, 0, 1), 4), False)
sketch4.addConstraint([
    Sketcher.Constraint("Diameter", 0, 8.0),
    Sketcher.Constraint("DistanceX", 0, 3, -1, 1, 34.65009),
    Sketcher.Constraint("DistanceY", 0, 3, -1, 1, 25.819198),
])
pocket3 = doc.addObject("PartDesign::Pocket", "Pocket002")
body.addObject(pocket3)
pocket3.Profile = sketch4
pocket3.Length = 6

doc.recompute()
